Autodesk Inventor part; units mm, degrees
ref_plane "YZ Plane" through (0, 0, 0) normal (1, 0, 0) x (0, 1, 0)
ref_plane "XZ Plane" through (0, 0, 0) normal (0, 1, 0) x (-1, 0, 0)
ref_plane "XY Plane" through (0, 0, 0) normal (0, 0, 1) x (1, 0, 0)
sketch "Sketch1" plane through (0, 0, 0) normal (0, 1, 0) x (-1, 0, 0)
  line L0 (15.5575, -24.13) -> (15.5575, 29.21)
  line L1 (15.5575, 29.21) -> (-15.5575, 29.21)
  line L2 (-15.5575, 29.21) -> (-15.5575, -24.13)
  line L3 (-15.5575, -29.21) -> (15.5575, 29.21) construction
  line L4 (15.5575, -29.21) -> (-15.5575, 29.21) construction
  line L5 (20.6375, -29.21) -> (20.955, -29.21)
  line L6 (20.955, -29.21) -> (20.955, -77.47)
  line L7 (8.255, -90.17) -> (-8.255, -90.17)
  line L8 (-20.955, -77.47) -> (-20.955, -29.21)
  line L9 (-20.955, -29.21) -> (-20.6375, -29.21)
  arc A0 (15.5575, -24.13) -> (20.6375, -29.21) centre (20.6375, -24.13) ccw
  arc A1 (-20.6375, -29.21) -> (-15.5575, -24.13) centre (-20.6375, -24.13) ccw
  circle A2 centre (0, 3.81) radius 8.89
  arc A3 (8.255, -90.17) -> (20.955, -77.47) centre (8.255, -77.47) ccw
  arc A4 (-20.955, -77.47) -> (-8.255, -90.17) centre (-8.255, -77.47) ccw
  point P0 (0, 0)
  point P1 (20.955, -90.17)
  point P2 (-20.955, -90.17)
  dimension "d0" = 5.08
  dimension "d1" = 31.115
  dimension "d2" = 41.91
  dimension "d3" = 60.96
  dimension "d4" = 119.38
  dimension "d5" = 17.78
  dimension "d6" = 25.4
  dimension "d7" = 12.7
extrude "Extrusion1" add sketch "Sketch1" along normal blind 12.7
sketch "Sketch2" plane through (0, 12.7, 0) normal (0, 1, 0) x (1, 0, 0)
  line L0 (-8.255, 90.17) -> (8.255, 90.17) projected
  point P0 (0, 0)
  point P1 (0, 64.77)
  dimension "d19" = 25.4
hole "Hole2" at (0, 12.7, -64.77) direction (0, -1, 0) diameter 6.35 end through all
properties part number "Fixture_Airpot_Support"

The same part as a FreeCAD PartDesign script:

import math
import FreeCAD as App
import Part
import Sketcher

V = App.Vector
Q = App.Units.Quantity

doc = App.newDocument("Part")
body = doc.addObject("PartDesign::Body", "Body")

# Sketch on XZ plane
sketch1 = body.newObject("Sketcher::SketchObject", "Sketch")
sketch1.AttachmentSupport = (doc.getObject("XZ_Plane"), [""])
sketch1.MapMode = "FlatFace"
sketch1.addGeometry([
    Part.ArcOfCircle(Part.Circle(V(-20.64, -24.13, 0), V(0, 0, 1), 5.08), math.radians(-90), math.radians(0)),  # 0
    Part.LineSegment(V(-15.56, -24.13, 0), V(-15.56, 29.21, 0)),  # 1
    Part.LineSegment(V(-15.56, 29.21, 0), V(15.56, 29.21, 0)),  # 2
    Part.LineSegment(V(15.56, 29.21, 0), V(15.56, -24.13, 0)),  # 3
    Part.ArcOfCircle(Part.Circle(V(20.64, -24.13, 0), V(0, 0, 1), 5.08), math.radians(180), math.radians(270)),  # 4
    Part.LineSegment(V(20.64, -29.21, 0), V(20.95, -29.21, 0)),  # 5
    Part.LineSegment(V(20.95, -29.21, 0), V(20.95, -77.47, 0)),  # 6
    Part.ArcOfCircle(Part.Circle(V(8.26, -77.47, 0), V(0, 0, 1), 12.7), math.radians(-90), math.radians(0)),  # 7
    Part.LineSegment(V(8.26, -90.17, 0), V(-8.26, -90.17, 0)),  # 8
    Part.ArcOfCircle(Part.Circle(V(-8.26, -77.47, 0), V(0, 0, 1), 12.7), math.radians(180), math.radians(270)),  # 9
    Part.LineSegment(V(-20.95, -77.47, 0), V(-20.95, -29.21, 0)),  # 10
    Part.LineSegment(V(-20.95, -29.21, 0), V(-20.64, -29.21, 0)),  # 11
    Part.Circle(V(0, 3.81, 0), V(0, 0, 1), 8.89),  # 12
], False)
sketch1.addConstraint([
    Sketcher.Constraint("Tangent", 0, 2, 1, 1),
    Sketcher.Constraint("Coincident", 1, 2, 2, 1),
    Sketcher.Constraint("Coincident", 2, 2, 3, 1),
    Sketcher.Constraint("Tangent", 3, 2, 4, 1),
    Sketcher.Constraint("Tangent", 4, 2, 5, 1),
    Sketcher.Constraint("Coincident", 5, 2, 6, 1),
    Sketcher.Constraint("Tangent", 6, 2, 7, 2),
    Sketcher.Constraint("Tangent", 7, 1, 8, 1),
    Sketcher.Constraint("Tangent", 8, 2, 9, 2),
    Sketcher.Constraint("Tangent", 9, 1, 10, 1),
    Sketcher.Constraint("Coincident", 10, 2, 11, 1),
    Sketcher.Constraint("Tangent", 11, 2, 0, 1),
    Sketcher.Constraint("Vertical", 1),
    Sketcher.Constraint("Horizontal", 2),
    Sketcher.Constraint("Vertical", 3),
    Sketcher.Constraint("Horizontal", 5),
    Sketcher.Constraint("Vertical", 6),
    Sketcher.Constraint("Horizontal", 8),
    Sketcher.Constraint("Vertical", 10),
    Sketcher.Constraint("Horizontal", 11),
    Sketcher.Constraint("Equal", 0, 4),
    Sketcher.Constraint("Equal", 7, 9),
    Sketcher.Constraint("Symmetric", 0, 3, 4, 3, -2),
    Sketcher.Constraint("PointOnObject", 12, 3, -2),
    Sketcher.Constraint("Equal", 5, 11),
    Sketcher.Constraint("Diameter", 12, Q("0.7 in")),
    Sketcher.Constraint("Radius", 0, Q("0.2 in")),
    Sketcher.Constraint("Radius", 7, Q("0.5 in")),
    Sketcher.Constraint("DistanceY", 12, 3, 1, 2, Q("1 in")),
    Sketcher.Constraint("DistanceY", 7, 1, 4, 2, Q("2.4 in")),
    Sketcher.Constraint("DistanceX", 2, 1, 2, 2, Q("1.225 in")),
    Sketcher.Constraint("DistanceX", 9, 1, 6, 2, Q("1.65 in")),
    Sketcher.Constraint("DistanceY", 1, 1, 1, 2, Q("2.1 in")),
    Sketcher.Constraint("DistanceY", 0, 3, -1, 1, Q("0.95 in")),
])
pad1 = body.newObject("PartDesign::Pad", "Pad")
pad1.Profile = sketch1
pad1.Length = Q("0.5 in")
pad1.Reversed = True

# Sketch on XZ plane
sketch2 = body.newObject("Sketcher::SketchObject", "Sketch001")
sketch2.AttachmentSupport = (doc.getObject("XZ_Plane"), [""])
sketch2.MapMode = "FlatFace"
sketch2.AttachmentOffset = App.Placement(V(0, 0, -0.5 * 25.4), App.Rotation())
sketch2.addGeometry(Part.Circle(V(0, -64.8, 0), V(0, 0, 1), 3.2), False)
sketch2.addConstraint([
    Sketcher.Constraint("PointOnObject", 0, 3, -2),
    Sketcher.Constraint("Diameter", 0, Q("0.25 in")),
    Sketcher.Constraint("DistanceY", 0, 3, -1, 1, Q("2.55 in")),
])
doc.recompute()
hole = body.newObject("PartDesign::Hole", "Hole")
hole.Profile = sketch2
hole.ThreadType = "None"
hole.Diameter = Q("0.25 in")
hole.DepthType = "ThroughAll"
hole.Reversed = True

doc.recompute()
